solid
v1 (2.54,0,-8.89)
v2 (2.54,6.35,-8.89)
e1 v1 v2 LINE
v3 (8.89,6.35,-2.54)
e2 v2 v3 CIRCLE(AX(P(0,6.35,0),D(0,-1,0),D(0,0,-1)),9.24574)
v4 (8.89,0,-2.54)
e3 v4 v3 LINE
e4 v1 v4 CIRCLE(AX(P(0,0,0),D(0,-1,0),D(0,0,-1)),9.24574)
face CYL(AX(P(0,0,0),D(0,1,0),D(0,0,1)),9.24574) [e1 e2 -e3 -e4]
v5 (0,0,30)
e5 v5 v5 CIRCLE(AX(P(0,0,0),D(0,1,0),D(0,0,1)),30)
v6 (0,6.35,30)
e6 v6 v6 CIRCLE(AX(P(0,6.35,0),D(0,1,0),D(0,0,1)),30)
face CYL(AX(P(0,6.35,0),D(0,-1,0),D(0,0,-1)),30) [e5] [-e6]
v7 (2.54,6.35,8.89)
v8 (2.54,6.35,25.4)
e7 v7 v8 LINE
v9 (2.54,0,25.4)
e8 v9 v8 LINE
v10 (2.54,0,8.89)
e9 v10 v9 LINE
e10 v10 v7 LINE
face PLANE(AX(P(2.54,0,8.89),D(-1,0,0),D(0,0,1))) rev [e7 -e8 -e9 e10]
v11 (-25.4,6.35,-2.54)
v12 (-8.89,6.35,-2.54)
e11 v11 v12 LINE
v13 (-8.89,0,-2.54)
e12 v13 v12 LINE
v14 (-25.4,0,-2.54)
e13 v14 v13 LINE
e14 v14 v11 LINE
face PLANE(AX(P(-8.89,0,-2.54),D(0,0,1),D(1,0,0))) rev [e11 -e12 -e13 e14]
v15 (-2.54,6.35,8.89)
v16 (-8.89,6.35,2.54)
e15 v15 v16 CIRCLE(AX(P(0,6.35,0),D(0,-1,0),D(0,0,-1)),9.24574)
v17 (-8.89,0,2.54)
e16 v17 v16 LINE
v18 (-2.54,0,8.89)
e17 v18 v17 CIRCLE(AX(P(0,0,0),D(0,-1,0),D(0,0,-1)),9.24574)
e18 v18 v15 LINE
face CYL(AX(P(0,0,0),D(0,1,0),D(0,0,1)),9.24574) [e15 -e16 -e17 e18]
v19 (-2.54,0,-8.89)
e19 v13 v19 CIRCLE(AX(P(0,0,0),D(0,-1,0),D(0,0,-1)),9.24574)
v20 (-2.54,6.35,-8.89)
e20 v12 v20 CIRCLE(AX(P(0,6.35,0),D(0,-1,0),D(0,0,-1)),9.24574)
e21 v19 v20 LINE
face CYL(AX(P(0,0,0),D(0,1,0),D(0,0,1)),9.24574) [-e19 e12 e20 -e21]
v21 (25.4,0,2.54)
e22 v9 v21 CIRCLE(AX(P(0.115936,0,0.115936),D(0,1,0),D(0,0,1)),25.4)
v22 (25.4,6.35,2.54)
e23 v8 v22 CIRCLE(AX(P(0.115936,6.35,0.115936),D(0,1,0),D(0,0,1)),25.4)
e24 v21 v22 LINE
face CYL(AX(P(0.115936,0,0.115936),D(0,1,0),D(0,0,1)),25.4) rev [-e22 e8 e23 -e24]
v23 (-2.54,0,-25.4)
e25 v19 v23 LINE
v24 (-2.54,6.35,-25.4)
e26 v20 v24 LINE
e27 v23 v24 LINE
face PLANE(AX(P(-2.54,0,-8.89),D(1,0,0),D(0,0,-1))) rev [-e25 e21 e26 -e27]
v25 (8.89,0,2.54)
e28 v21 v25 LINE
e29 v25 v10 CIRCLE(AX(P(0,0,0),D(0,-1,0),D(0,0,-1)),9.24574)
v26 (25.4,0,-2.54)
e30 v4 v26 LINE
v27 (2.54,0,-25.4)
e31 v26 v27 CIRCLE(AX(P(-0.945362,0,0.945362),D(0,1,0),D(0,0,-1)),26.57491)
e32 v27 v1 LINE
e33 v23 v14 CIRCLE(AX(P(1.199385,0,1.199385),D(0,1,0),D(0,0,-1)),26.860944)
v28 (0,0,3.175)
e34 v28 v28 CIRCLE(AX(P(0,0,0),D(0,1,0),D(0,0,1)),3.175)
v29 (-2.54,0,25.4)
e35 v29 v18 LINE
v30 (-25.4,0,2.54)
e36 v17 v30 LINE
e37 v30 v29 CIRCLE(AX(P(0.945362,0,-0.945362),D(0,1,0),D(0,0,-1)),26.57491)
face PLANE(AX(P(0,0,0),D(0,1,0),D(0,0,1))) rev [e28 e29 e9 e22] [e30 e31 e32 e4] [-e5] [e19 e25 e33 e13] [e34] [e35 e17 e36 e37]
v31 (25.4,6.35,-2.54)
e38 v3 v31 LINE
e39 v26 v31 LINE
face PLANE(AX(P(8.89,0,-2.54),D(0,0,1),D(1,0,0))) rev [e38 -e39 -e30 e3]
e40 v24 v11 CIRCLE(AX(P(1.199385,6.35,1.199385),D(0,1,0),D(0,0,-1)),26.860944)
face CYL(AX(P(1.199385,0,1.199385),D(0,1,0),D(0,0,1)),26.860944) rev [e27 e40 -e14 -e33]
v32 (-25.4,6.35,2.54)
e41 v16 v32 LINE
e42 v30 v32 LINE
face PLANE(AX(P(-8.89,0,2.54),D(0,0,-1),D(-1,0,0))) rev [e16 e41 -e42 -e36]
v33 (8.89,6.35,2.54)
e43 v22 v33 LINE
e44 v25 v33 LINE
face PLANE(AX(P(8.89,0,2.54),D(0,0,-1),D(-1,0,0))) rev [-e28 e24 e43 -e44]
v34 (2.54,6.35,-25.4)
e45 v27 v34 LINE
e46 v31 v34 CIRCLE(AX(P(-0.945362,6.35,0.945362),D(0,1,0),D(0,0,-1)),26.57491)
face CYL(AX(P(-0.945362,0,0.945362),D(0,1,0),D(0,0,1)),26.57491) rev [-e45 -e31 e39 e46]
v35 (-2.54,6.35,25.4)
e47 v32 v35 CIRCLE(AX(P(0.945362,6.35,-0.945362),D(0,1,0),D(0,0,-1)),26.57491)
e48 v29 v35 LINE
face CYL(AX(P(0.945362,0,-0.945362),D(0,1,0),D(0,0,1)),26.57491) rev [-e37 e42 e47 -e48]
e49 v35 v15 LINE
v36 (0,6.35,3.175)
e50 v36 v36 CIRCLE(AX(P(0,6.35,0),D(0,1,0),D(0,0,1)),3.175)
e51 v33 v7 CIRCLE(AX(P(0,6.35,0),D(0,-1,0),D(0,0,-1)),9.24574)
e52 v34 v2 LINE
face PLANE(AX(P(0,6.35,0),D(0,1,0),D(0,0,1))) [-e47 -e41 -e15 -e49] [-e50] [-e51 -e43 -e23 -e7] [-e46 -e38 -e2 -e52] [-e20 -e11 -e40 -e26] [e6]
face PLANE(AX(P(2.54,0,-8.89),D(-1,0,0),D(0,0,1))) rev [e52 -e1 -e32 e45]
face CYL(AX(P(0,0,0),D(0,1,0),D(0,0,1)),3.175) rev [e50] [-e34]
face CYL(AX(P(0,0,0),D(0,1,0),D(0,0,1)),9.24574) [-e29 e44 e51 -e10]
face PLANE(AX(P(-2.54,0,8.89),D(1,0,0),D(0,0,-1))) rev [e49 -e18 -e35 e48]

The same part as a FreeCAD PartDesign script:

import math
import FreeCAD as App
import Part
import Sketcher
from FreeCAD import Vector
Q = App.Units.Quantity

doc = App.newDocument("Part")
params = doc.addObject("Spreadsheet::Sheet", "Params")
for row, (alias, value) in enumerate([
    ("pad1_length", "0.25 in"),
    ("sketch2_diameter", "0.25 in"),
    ("sketch3_radius", "1 in"),
    ("sketch3_width", "0.65 in"),
], start=1):
    params.set(f"A{row}", alias)
    params.set(f"B{row}", "=" + value)
    params.setAlias(f"B{row}", alias)

body = doc.addObject("PartDesign::Body", "Body")

sketch1 = body.newObject("Sketcher::SketchObject", "Sketch")
sketch1.AttachmentSupport = (doc.getObject("XZ_Plane"), [""])
sketch1.MapMode = "FlatFace"
sketch1.addGeometry(Part.Circle(Vector(0, 0, 0), Vector(0, 0, 1), 30), False)
sketch1.addConstraint(Sketcher.Constraint("Coincident", 0, 3, -1, 1))
sketch1.addConstraint(Sketcher.Constraint("Diameter", 0, Q("60 mm")))
pad1 = body.newObject("PartDesign::Pad", "Pad")
pad1.Profile = sketch1
pad1.setExpression("Length", "Params.pad1_length")
pad1.Reversed = True

sketch2 = body.newObject("Sketcher::SketchObject", "Sketch001")
sketch2.AttachmentSupport = (doc.getObject("XZ_Plane"), [""])
sketch2.MapMode = "FlatFace"
sketch2.AttachmentOffset = App.Placement(Vector(0, 0, -0.25 * 25.4), App.Rotation())
sketch2.addGeometry(Part.Circle(Vector(0, 0, 0), Vector(0, 0, 1), 3.2), False)
sketch2.addConstraint(Sketcher.Constraint("Coincident", 0, 3, -1, 1))
sketch2.addConstraint(Sketcher.Constraint("Diameter", 0, Q("0.25 in")))
sketch2.setExpression("Constraints[1]", "Params.sketch2_diameter")
pocket1 = body.newObject("PartDesign::Pocket", "Pocket")
pocket1.Profile = sketch2
pocket1.Type = "ThroughAll"
pocket1.Reversed = True

sketch3 = body.newObject("Sketcher::SketchObject", "Sketch002")
sketch3.AttachmentSupport = (doc.getObject("XZ_Plane"), [""])
sketch3.MapMode = "FlatFace"
sketch3.AttachmentOffset = App.Placement(Vector(0, 0, -0.25 * 25.4), App.Rotation())
sketch3.addGeometry(Part.LineSegment(Vector(25, 3, 0), Vector(9, 3, 0)), False)
sketch3.addGeometry(Part.ArcOfCircle(Part.Circle(Vector(0, 0, 0), Vector(0, 0, 1), 9), math.radians(16), math.radians(74)), False)
sketch3.addGeometry(Part.LineSegment(Vector(3, 9, 0), Vector(3, 25, 0)), False)
sketch3.addGeometry(Part.ArcOfCircle(Part.Circle(Vector(0, 0, 0), Vector(0, 0, 1), 25), math.radians(5), math.radians(85)), False)
sketch3.addGeometry(Part.LineSegment(Vector(-3, 25, 0), Vector(-3, 9, 0)), False)
sketch3.addGeometry(Part.ArcOfCircle(Part.Circle(Vector(0, 0, 0), Vector(0, 0, 1), 9), math.radians(106), math.radians(164)), False)
sketch3.addGeometry(Part.LineSegment(Vector(-9, 3, 0), Vector(-25, 3, 0)), False)
sketch3.addGeometry(Part.ArcOfCircle(Part.Circle(Vector(1, -1, 0), Vector(0, 0, 1), 27), math.radians(98), math.radians(172)), False)
sketch3.addGeometry(Part.LineSegment(Vector(-25, -3, 0), Vector(-9, -3, 0)), False)
sketch3.addGeometry(Part.ArcOfCircle(Part.Circle(Vector(0, 0, 0), Vector(0, 0, 1), 9), math.radians(-164), math.radians(-106)), False)
sketch3.addGeometry(Part.LineSegment(Vector(-3, -9, 0), Vector(-3, -25, 0)), False)
sketch3.addGeometry(Part.ArcOfCircle(Part.Circle(Vector(1, 1, 0), Vector(0, 0, 1), 27), math.radians(-172), math.radians(-98)), False)
sketch3.addGeometry(Part.LineSegment(Vector(3, -25, 0), Vector(3, -9, 0)), False)
sketch3.addGeometry(Part.ArcOfCircle(Part.Circle(Vector(0, 0, 0), Vector(0, 0, 1), 9), math.radians(-74), math.radians(-16)), False)
sketch3.addGeometry(Part.LineSegment(Vector(9, -3, 0), Vector(25, -3, 0)), False)
sketch3.addGeometry(Part.ArcOfCircle(Part.Circle(Vector(-1, 1, 0), Vector(0, 0, 1), 27), math.radians(-82), math.radians(-8)), False)
sketch3.addConstraint(Sketcher.Constraint("Coincident", 0, 2, 1, 1))
sketch3.addConstraint(Sketcher.Constraint("Coincident", 1, 2, 2, 1))
sketch3.addConstraint(Sketcher.Constraint("Coincident", 2, 2, 3, 2))
sketch3.addConstraint(Sketcher.Constraint("Coincident", 3, 1, 0, 1))
sketch3.addConstraint(Sketcher.Constraint("Coincident", 4, 2, 5, 1))
sketch3.addConstraint(Sketcher.Constraint("Coincident", 5, 2, 6, 1))
sketch3.addConstraint(Sketcher.Constraint("Coincident", 6, 2, 7, 2))
sketch3.addConstraint(Sketcher.Constraint("Coincident", 7, 1, 4, 1))
sketch3.addConstraint(Sketcher.Constraint("Coincident", 8, 2, 9, 1))
sketch3.addConstraint(Sketcher.Constraint("Coincident", 9, 2, 10, 1))
sketch3.addConstraint(Sketcher.Constraint("Coincident", 10, 2, 11, 2))
sketch3.addConstraint(Sketcher.Constraint("Coincident", 11, 1, 8, 1))
sketch3.addConstraint(Sketcher.Constraint("Coincident", 12, 2, 13, 1))
sketch3.addConstraint(Sketcher.Constraint("Coincident", 13, 2, 14, 1))
sketch3.addConstraint(Sketcher.Constraint("Coincident", 14, 2, 15, 2))
sketch3.addConstraint(Sketcher.Constraint("Coincident", 15, 1, 12, 1))
sketch3.addConstraint(Sketcher.Constraint("Horizontal", 0))
sketch3.addConstraint(Sketcher.Constraint("Vertical", 2))
sketch3.addConstraint(Sketcher.Constraint("Vertical", 4))
sketch3.addConstraint(Sketcher.Constraint("Horizontal", 6))
sketch3.addConstraint(Sketcher.Constraint("Horizontal", 8))
sketch3.addConstraint(Sketcher.Constraint("Vertical", 10))
sketch3.addConstraint(Sketcher.Constraint("Vertical", 12))
sketch3.addConstraint(Sketcher.Constraint("Horizontal", 14))
sketch3.addConstraint(Sketcher.Constraint("Coincident", 1, 3, -1, 1))
sketch3.addConstraint(Sketcher.Constraint("Coincident", 5, 3, -1, 1))
sketch3.addConstraint(Sketcher.Constraint("Coincident", 9, 3, -1, 1))
sketch3.addConstraint(Sketcher.Constraint("Coincident", 13, 3, -1, 1))
sketch3.addConstraint(Sketcher.Constraint("Equal", 1, 5))
sketch3.addConstraint(Sketcher.Constraint("Equal", 5, 9))
sketch3.addConstraint(Sketcher.Constraint("Equal", 9, 13))
sketch3.addConstraint(Sketcher.Constraint("Equal", 7, 15))
sketch3.addConstraint(Sketcher.Constraint("Symmetric", 7, 3, 15, 3, -1, 1))
sketch3.addConstraint(Sketcher.Constraint("Symmetric", 2, 2, 10, 2, -1, 1))
sketch3.addConstraint(Sketcher.Constraint("Symmetric", 3, 1, 11, 1, -1, 1))
sketch3.addConstraint(Sketcher.Constraint("Symmetric", 3, 1, 6, 2, -2))
sketch3.addConstraint(Sketcher.Constraint("Symmetric", 2, 2, 7, 1, -2))
sketch3.addConstraint(Sketcher.Constraint("Horizontal", 9, 2, 12, 2))
sketch3.addConstraint(Sketcher.Constraint("Horizontal", 11, 1, 13, 2))
sketch3.addConstraint(Sketcher.Constraint("Equal", 14, 2))
sketch3.addConstraint(Sketcher.Constraint("Radius", 3, Q("1 in")))
sketch3.addConstraint(Sketcher.Constraint("DistanceY", -1, 1, 2, 2, Q("1 in")))
sketch3.addConstraint(Sketcher.Constraint("DistanceX", -1, 1, 3, 1, Q("1 in")))
sketch3.addConstraint(Sketcher.Constraint("DistanceX", 0, 2, 0, 1, Q("0.65 in")))
sketch3.addConstraint(Sketcher.Constraint("DistanceY", -1, 1, 0, 2, Q("0.1 in")))
sketch3.addConstraint(Sketcher.Constraint("Radius", 7, Q("26.57491 mm")))
sketch3.addConstraint(Sketcher.Constraint("Radius", 11, Q("26.860944 mm")))
sketch3.setExpression("Constraints[40]", "Params.sketch3_radius")
sketch3.setExpression("Constraints[43]", "Params.sketch3_width")
pocket2 = body.newObject("PartDesign::Pocket", "Pocket001")
pocket2.Profile = sketch3
pocket2.Type = "ThroughAll"
pocket2.Reversed = True

doc.recompute()
